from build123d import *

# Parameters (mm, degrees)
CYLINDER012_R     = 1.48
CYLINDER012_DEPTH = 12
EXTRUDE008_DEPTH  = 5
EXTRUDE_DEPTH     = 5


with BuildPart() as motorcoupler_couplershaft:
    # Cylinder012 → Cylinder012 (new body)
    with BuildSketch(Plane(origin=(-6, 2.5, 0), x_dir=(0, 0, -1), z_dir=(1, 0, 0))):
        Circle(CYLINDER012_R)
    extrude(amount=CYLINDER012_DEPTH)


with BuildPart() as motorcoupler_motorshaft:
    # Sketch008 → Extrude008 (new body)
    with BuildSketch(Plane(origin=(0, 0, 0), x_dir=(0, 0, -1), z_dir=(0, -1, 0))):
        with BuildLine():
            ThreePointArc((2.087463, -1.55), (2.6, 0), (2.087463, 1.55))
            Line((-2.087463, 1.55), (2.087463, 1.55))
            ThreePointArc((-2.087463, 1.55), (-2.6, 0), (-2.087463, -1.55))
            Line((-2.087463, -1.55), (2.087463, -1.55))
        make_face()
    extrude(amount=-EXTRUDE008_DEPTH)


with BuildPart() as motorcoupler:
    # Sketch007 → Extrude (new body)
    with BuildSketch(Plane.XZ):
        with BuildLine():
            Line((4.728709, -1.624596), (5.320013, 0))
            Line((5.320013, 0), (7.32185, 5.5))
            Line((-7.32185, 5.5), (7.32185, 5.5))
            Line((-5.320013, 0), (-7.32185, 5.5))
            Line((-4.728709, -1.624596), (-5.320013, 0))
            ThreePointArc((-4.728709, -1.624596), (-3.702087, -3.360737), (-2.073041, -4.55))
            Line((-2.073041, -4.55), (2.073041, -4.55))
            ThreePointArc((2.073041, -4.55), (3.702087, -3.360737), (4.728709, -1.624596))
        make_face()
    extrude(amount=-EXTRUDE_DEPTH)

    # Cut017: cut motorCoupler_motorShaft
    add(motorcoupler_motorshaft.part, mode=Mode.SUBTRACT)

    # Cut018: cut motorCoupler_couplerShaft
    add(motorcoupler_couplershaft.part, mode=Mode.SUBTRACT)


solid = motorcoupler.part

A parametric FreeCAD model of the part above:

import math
import FreeCAD as App
import Part
import Sketcher
from FreeCAD import Vector

doc = App.newDocument("Part")
params = doc.addObject("Spreadsheet::Sheet", "Params")
for row, (alias, value) in enumerate([
    ("sketch1_diameter", "2.96 mm"),
    ("pad1_length", "12 mm"),
    ("sketch2_radius", "2.600002 mm"),
    ("pad2_length", "5 mm"),
    ("sketch3_radius", "4.999998 mm"),
    ("sketch3_radius2", "4.999998 mm"),
    ("pad3_length", "5 mm"),
], start=1):
    params.set(f"A{row}", alias)
    params.set(f"B{row}", "=" + value)
    params.setAlias(f"B{row}", alias)

body = doc.addObject("PartDesign::Body", "Body")

# Sketch on YZ plane
sketch1 = body.newObject("Sketcher::SketchObject", "Sketch")
sketch1.AttachmentSupport = (doc.getObject("YZ_Plane"), [""])
sketch1.MapMode = "FlatFace"
sketch1.AttachmentOffset = App.Placement(Vector(0, 0, -6), App.Rotation())
sketch1.addGeometry(Part.Circle(Vector(2.5, 0, 0), Vector(0, 0, 1), 1.5), False)
sketch1.addConstraint([
    Sketcher.Constraint("PointOnObject", 0, 3, -1),
    Sketcher.Constraint("Diameter", 0, 2.96),
    Sketcher.Constraint("DistanceX", -1, 1, 0, 3, 2.5),
])
sketch1.setExpression("Constraints[1]", "Params.sketch1_diameter")
pad1 = body.newObject("PartDesign::Pad", "Pad")
pad1.Profile = sketch1
pad1.setExpression("Length", "Params.pad1_length")
body2 = doc.addObject("PartDesign::Body", "Body001")

# Sketch on XZ plane
sketch2 = body2.newObject("Sketcher::SketchObject", "Sketch001")
sketch2.AttachmentSupport = (doc.getObject("XZ_Plane001"), [""])
sketch2.MapMode = "FlatFace"
sketch2.addGeometry([
    Part.ArcOfCircle(Part.Circle(Vector(0, 0, 0), Vector(0, 0, 1), 2.6), math.radians(-127), math.radians(-53)),
    Part.LineSegment(Vector(1.6, -2.1, 0), Vector(1.6, 2.1, 0)),
    Part.ArcOfCircle(Part.Circle(Vector(0, 0, 0), Vector(0, 0, 1), 2.6), math.radians(53), math.radians(127)),
    Part.LineSegment(Vector(-1.6, 2.1, 0), Vector(-1.6, -2.1, 0)),
], False)
sketch2.addConstraint([
    Sketcher.Constraint("Coincident", 0, 2, 1, 1),
    Sketcher.Constraint("Coincident", 1, 2, 2, 1),
    Sketcher.Constraint("Coincident", 2, 2, 3, 1),
    Sketcher.Constraint("Coincident", 3, 2, 0, 1),
    Sketcher.Constraint("Vertical", 1),
    Sketcher.Constraint("Vertical", 3),
    Sketcher.Constraint("Coincident", 0, 3, -1, 1),
    Sketcher.Constraint("Coincident", 2, 3, -1, 1),
    Sketcher.Constraint("Equal", 0, 2),
    Sketcher.Constraint("Horizontal", 1, 2, 2, 2),
    Sketcher.Constraint("Radius", 0, 2.600002),
    Sketcher.Constraint("DistanceX", 2, 2, 1, 2, 3.1),
])
sketch2.setExpression("Constraints[10]", "Params.sketch2_radius")
pad2 = body2.newObject("PartDesign::Pad", "Pad001")
pad2.Profile = sketch2
pad2.setExpression("Length", "Params.pad2_length")
pad2.Reversed = True
body3 = doc.addObject("PartDesign::Body", "Body002")

# Sketch on XZ plane
sketch3 = body3.newObject("Sketcher::SketchObject", "Sketch002")
sketch3.AttachmentSupport = (doc.getObject("XZ_Plane002"), [""])
sketch3.MapMode = "FlatFace"
sketch3.addGeometry([
    Part.LineSegment(Vector(4.728709, -1.624596, 0), Vector(5.320013, 0, 0)),  # 0
    Part.LineSegment(Vector(5.320013, 0, 0), Vector(7.32185, 5.5, 0)),  # 1
    Part.LineSegment(Vector(7.32185, 5.5, 0), Vector(-7.32185, 5.5, 0)),  # 2
    Part.LineSegment(Vector(-7.32185, 5.5, 0), Vector(-5.320013, 0, 0)),  # 3
    Part.LineSegment(Vector(-5.320013, 0, 0), Vector(-4.728709, -1.624596, 0)),  # 4
    Part.ArcOfCircle(Part.Circle(Vector(-0.000001, -0.000001, 0), Vector(0, 0, 1), 4.999998), math.radians(-161.039325), math.radians(-114.494636)),  # 5
    Part.LineSegment(Vector(-2.073041, -4.55, 0), Vector(2.073041, -4.55, 0)),  # 6
    Part.ArcOfCircle(Part.Circle(Vector(0.000001, -0.000001, 0), Vector(0, 0, 1), 4.999998), math.radians(-65.505364), math.radians(-18.960675)),  # 7
], False)
sketch3.addConstraint([
    Sketcher.Constraint("Coincident", 0, 2, 1, 1),
    Sketcher.Constraint("Coincident", 1, 2, 2, 1),
    Sketcher.Constraint("Coincident", 2, 2, 3, 1),
    Sketcher.Constraint("Coincident", 3, 2, 4, 1),
    Sketcher.Constraint("Coincident", 4, 2, 5, 1),
    Sketcher.Constraint("Coincident", 5, 2, 6, 1),
    Sketcher.Constraint("Coincident", 6, 2, 7, 1),
    Sketcher.Constraint("Coincident", 7, 2, 0, 1),
    Sketcher.Constraint("Horizontal", 2),
    Sketcher.Constraint("Horizontal", 6),
    Sketcher.Constraint("Coincident", 5, 3, -1, 1),
    Sketcher.Constraint("Coincident", 7, 3, -1, 1),
    Sketcher.Constraint("PointOnObject", 0, 2, -1),
    Sketcher.Constraint("PointOnObject", 3, 2, -1),
    Sketcher.Constraint("Radius", 5, 4.999998),
    Sketcher.Constraint("Radius", 7, 4.999998),
    Sketcher.Constraint("DistanceY", -1, 1, 1, 2, 5.5),
    Sketcher.Constraint("DistanceY", 5, 2, -1, 1, 4.55),
    Sketcher.Constraint("DistanceX", 2, 2, 2, 1, 14.6437),
    Sketcher.Constraint("Distance", 0, 1.728859),
    Sketcher.Constraint("Distance", 4, 1.728859),
    Sketcher.Constraint("DistanceX", -1, 1, 1, 2, 7.32185),
    Sketcher.Constraint("DistanceX", 4, 2, -1, 1, 4.728709),
    Sketcher.Constraint("DistanceX", -1, 1, 7, 2, 4.728709),
])
sketch3.setExpression("Constraints[14]", "Params.sketch3_radius")
sketch3.setExpression("Constraints[15]", "Params.sketch3_radius2")
pad3 = body3.newObject("PartDesign::Pad", "Pad002")
pad3.Profile = sketch3
pad3.setExpression("Length", "Params.pad3_length")
pad3.Reversed = True
doc.recompute()

boolean = body3.newObject("PartDesign::Boolean", "Boolean")
boolean.Type = "Cut"
boolean.addObjects([body2])
doc.recompute()

boolean2 = body3.newObject("PartDesign::Boolean", "Boolean001")
boolean2.Type = "Cut"
boolean2.addObjects([body])

doc.recompute()
